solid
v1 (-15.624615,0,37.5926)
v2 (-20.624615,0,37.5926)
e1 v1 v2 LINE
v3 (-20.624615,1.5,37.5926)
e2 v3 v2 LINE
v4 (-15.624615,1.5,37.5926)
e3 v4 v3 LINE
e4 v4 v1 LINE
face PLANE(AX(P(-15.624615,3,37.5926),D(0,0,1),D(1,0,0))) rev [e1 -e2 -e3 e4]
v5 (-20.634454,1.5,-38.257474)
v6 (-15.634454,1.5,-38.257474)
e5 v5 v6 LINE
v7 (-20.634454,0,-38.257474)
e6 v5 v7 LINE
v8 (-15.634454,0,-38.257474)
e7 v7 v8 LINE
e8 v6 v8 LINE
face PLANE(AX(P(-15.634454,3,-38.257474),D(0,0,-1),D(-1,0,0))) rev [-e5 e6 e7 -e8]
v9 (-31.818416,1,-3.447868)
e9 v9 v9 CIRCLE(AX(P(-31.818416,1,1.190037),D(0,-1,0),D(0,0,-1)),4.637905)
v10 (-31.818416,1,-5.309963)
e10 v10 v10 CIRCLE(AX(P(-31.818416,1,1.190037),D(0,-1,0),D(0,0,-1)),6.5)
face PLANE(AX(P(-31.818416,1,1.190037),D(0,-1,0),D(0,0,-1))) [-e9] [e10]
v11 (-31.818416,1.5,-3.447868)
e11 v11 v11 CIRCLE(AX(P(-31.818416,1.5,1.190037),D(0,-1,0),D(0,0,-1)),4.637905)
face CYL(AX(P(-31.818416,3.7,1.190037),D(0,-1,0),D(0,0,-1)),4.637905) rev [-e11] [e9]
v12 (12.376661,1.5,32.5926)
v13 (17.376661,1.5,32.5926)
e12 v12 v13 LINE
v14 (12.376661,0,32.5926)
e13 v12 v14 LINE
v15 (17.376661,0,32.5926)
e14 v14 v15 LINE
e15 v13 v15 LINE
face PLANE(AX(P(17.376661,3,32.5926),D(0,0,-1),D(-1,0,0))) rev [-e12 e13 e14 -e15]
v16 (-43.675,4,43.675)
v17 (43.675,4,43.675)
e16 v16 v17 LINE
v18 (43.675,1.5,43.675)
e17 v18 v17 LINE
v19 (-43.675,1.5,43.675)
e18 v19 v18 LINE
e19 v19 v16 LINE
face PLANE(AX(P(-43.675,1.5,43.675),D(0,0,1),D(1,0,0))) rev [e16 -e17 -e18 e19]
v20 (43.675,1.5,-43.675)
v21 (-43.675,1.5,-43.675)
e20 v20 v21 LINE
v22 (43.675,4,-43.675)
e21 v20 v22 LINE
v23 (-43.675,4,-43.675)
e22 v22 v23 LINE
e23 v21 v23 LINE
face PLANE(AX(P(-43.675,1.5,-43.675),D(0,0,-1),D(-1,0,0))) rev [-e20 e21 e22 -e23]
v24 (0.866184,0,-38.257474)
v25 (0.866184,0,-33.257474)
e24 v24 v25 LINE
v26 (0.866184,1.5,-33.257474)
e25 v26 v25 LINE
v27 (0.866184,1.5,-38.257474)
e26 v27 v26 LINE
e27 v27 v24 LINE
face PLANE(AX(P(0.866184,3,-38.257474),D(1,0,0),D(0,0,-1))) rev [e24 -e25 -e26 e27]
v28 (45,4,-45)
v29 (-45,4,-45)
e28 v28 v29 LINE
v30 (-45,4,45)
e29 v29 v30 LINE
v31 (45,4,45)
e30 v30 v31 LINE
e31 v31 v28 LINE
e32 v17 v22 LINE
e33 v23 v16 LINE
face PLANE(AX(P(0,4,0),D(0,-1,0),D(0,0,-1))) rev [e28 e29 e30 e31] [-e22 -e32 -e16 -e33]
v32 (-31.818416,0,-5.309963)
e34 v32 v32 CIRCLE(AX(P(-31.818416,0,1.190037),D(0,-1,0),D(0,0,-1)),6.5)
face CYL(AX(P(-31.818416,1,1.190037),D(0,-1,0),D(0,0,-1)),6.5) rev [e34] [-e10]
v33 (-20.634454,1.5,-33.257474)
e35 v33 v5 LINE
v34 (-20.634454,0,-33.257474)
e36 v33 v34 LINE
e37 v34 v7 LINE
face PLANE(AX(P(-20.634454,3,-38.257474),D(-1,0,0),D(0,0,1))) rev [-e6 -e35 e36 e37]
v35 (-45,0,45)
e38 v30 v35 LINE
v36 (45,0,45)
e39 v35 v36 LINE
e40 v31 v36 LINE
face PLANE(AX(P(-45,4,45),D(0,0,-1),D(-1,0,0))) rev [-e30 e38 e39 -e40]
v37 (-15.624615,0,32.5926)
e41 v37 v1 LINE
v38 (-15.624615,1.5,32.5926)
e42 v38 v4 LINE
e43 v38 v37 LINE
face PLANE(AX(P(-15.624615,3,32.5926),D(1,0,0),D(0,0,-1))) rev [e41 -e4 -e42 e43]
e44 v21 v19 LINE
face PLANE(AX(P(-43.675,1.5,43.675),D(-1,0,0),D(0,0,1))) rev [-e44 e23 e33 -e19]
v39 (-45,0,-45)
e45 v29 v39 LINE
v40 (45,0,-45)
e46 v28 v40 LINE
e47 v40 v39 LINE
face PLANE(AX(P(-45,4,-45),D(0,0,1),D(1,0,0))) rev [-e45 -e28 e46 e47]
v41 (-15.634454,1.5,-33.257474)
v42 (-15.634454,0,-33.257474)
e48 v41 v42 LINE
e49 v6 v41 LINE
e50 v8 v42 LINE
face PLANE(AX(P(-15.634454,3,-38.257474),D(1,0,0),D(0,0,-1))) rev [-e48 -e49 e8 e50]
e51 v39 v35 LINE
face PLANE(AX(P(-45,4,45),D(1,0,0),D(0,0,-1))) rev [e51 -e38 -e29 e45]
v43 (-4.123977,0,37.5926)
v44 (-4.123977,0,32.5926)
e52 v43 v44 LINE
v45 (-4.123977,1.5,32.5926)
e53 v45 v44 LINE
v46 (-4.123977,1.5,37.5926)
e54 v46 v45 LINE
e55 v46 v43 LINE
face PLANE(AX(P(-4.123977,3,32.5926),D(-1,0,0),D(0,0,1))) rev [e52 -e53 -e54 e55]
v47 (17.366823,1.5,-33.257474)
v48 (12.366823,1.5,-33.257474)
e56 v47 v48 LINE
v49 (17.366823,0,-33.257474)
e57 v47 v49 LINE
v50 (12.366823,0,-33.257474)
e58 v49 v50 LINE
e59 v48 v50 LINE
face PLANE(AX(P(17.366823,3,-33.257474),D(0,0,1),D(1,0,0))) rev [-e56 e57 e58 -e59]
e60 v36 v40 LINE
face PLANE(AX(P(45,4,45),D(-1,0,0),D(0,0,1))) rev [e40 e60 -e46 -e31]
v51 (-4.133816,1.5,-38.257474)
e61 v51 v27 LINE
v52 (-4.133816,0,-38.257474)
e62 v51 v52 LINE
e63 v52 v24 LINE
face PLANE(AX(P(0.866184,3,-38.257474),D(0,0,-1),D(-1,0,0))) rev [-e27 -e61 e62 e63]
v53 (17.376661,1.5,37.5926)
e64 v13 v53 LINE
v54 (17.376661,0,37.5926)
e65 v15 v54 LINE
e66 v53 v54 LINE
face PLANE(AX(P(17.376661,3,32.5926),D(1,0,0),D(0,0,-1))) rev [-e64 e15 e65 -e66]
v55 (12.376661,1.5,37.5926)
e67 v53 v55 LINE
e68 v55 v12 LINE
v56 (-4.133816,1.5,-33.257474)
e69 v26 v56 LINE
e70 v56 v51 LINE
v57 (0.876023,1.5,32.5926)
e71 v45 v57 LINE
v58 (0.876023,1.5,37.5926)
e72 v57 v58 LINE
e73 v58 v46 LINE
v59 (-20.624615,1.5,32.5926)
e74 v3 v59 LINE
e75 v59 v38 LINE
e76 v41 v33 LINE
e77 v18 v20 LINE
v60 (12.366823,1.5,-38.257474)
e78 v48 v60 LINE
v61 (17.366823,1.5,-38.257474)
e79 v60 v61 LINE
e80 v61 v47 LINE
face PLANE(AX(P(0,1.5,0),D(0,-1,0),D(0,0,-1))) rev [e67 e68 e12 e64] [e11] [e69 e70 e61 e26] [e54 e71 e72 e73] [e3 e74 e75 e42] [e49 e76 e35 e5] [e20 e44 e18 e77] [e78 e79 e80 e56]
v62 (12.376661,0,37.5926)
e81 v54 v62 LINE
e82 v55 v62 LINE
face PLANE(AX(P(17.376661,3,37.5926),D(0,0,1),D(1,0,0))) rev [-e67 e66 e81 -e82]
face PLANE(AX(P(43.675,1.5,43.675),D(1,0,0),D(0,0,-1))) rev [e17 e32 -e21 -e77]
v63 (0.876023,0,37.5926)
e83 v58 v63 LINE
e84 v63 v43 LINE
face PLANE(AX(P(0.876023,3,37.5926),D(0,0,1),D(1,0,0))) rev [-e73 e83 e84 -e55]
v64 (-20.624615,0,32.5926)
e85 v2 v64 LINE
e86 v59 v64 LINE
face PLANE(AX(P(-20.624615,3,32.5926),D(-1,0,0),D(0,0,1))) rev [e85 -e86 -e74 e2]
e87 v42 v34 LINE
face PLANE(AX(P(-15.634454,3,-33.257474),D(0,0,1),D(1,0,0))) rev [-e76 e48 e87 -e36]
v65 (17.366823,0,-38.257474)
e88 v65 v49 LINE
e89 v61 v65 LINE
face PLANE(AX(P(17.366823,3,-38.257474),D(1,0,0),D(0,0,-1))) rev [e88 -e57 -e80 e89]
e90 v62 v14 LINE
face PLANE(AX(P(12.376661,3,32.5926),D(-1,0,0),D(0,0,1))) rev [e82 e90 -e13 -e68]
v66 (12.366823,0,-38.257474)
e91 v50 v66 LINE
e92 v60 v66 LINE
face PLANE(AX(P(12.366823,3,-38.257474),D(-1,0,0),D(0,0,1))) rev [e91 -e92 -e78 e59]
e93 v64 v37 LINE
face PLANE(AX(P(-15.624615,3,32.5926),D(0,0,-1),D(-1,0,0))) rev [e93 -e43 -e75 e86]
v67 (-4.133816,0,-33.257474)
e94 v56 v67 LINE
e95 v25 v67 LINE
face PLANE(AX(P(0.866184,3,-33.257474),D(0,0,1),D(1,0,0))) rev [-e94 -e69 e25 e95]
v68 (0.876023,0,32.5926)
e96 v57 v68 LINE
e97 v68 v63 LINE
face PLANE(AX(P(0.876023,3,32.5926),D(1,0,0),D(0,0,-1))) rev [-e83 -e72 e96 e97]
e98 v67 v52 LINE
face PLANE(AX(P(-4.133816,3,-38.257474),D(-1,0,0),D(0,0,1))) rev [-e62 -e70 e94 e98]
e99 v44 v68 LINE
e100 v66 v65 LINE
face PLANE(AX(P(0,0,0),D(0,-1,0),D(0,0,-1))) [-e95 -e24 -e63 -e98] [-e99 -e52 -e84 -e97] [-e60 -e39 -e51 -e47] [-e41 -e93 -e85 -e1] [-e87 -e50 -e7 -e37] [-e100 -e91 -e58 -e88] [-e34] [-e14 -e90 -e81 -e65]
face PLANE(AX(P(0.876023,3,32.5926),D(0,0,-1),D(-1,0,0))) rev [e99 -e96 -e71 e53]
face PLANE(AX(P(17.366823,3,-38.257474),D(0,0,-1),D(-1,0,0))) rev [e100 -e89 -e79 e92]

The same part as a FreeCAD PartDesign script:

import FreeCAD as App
import Part
import Sketcher
Q = App.Units.Quantity

doc = App.newDocument("Part")
body = doc.addObject("PartDesign::Body", "Body")

# Sketch on XZ plane
sketch1 = body.newObject("Sketcher::SketchObject", "Sketch")
sketch1.AttachmentSupport = (doc.getObject("XZ_Plane"), [""])
sketch1.MapMode = "FlatFace"
sketch1.addGeometry([
    Part.LineSegment(App.Vector(-45, -45, 0), App.Vector(-45, 45, 0)),
    Part.LineSegment(App.Vector(-45, 45, 0), App.Vector(45, 45, 0)),
    Part.LineSegment(App.Vector(45, 45, 0), App.Vector(45, -45, 0)),
    Part.LineSegment(App.Vector(45, -45, 0), App.Vector(-45, -45, 0)),
], False)
sketch1.addConstraint([
    Sketcher.Constraint("Coincident", 0, 2, 1, 1),
    Sketcher.Constraint("Coincident", 1, 2, 2, 1),
    Sketcher.Constraint("Coincident", 2, 2, 3, 1),
    Sketcher.Constraint("Coincident", 3, 2, 0, 1),
    Sketcher.Constraint("Vertical", 0),
    Sketcher.Constraint("Horizontal", 1),
    Sketcher.Constraint("Vertical", 2),
    Sketcher.Constraint("Horizontal", 3),
    Sketcher.Constraint("Symmetric", 0, 2, 2, 2, -1, 1),
    Sketcher.Constraint("Equal", 3, 0),
    Sketcher.Constraint("DistanceX", 1, 1, 1, 2, Q("90 mm")),
])
pad1 = body.newObject("PartDesign::Pad", "Pad")
pad1.Profile = sketch1
pad1.Length = 4
pad1.Reversed = True

# Sketch on XZ plane
sketch2 = body.newObject("Sketcher::SketchObject", "Sketch001")
sketch2.AttachmentSupport = (doc.getObject("XZ_Plane"), [""])
sketch2.MapMode = "FlatFace"
sketch2.AttachmentOffset = App.Placement(App.Vector(0, 0, -4), App.Rotation())
sketch2.addGeometry([
    Part.LineSegment(App.Vector(-44, -44, 0), App.Vector(-44, 44, 0)),
    Part.LineSegment(App.Vector(-44, 44, 0), App.Vector(44, 44, 0)),
    Part.LineSegment(App.Vector(44, 44, 0), App.Vector(44, -44, 0)),
    Part.LineSegment(App.Vector(44, -44, 0), App.Vector(-44, -44, 0)),
], False)
sketch2.addConstraint([
    Sketcher.Constraint("Coincident", 0, 2, 1, 1),
    Sketcher.Constraint("Coincident", 1, 2, 2, 1),
    Sketcher.Constraint("Coincident", 2, 2, 3, 1),
    Sketcher.Constraint("Coincident", 3, 2, 0, 1),
    Sketcher.Constraint("Vertical", 0),
    Sketcher.Constraint("Horizontal", 1),
    Sketcher.Constraint("Vertical", 2),
    Sketcher.Constraint("Horizontal", 3),
    Sketcher.Constraint("Symmetric", 0, 2, 2, 2, -1, 1),
    Sketcher.Constraint("Equal", 3, 0),
    Sketcher.Constraint("DistanceX", 1, 1, 1, 2, Q("87.35 mm")),
])
pocket1 = body.newObject("PartDesign::Pocket", "Pocket")
pocket1.Profile = sketch2
pocket1.Length = 2.5
pocket1.Reversed = True

# Sketch on XZ plane
sketch3 = body.newObject("Sketcher::SketchObject", "Sketch002")
sketch3.AttachmentSupport = (doc.getObject("XZ_Plane"), [""])
sketch3.MapMode = "FlatFace"
sketch3.addGeometry([
    Part.LineSegment(App.Vector(12, -33, 0), App.Vector(12, -38, 0)),  # 0
    Part.LineSegment(App.Vector(12, -38, 0), App.Vector(17, -38, 0)),  # 1
    Part.LineSegment(App.Vector(17, -38, 0), App.Vector(17, -33, 0)),  # 2
    Part.LineSegment(App.Vector(17, -33, 0), App.Vector(12, -33, 0)),  # 3
    Part.LineSegment(App.Vector(-4, -33, 0), App.Vector(-4, -38, 0)),  # 4
    Part.LineSegment(App.Vector(-4, -38, 0), App.Vector(1, -38, 0)),  # 5
    Part.LineSegment(App.Vector(1, -38, 0), App.Vector(1, -33, 0)),  # 6
    Part.LineSegment(App.Vector(1, -33, 0), App.Vector(-4, -33, 0)),  # 7
    Part.LineSegment(App.Vector(-21, -33, 0), App.Vector(-21, -38, 0)),  # 8
    Part.LineSegment(App.Vector(-21, -38, 0), App.Vector(-16, -38, 0)),  # 9
    Part.LineSegment(App.Vector(-16, -38, 0), App.Vector(-16, -33, 0)),  # 10
    Part.LineSegment(App.Vector(-16, -33, 0), App.Vector(-21, -33, 0)),  # 11
    Part.LineSegment(App.Vector(12, 38, 0), App.Vector(12, 33, 0)),  # 12
    Part.LineSegment(App.Vector(12, 33, 0), App.Vector(17, 33, 0)),  # 13
    Part.LineSegment(App.Vector(17, 33, 0), App.Vector(17, 38, 0)),  # 14
    Part.LineSegment(App.Vector(17, 38, 0), App.Vector(12, 38, 0)),  # 15
    Part.LineSegment(App.Vector(-4, 38, 0), App.Vector(-4, 33, 0)),  # 16
    Part.LineSegment(App.Vector(-4, 33, 0), App.Vector(1, 33, 0)),  # 17
    Part.LineSegment(App.Vector(1, 33, 0), App.Vector(1, 38, 0)),  # 18
    Part.LineSegment(App.Vector(1, 38, 0), App.Vector(-4, 38, 0)),  # 19
    Part.LineSegment(App.Vector(-21, 38, 0), App.Vector(-21, 33, 0)),  # 20
    Part.LineSegment(App.Vector(-21, 33, 0), App.Vector(-16, 33, 0)),  # 21
    Part.LineSegment(App.Vector(-16, 33, 0), App.Vector(-16, 38, 0)),  # 22
    Part.LineSegment(App.Vector(-16, 38, 0), App.Vector(-21, 38, 0)),  # 23
], False)
sketch3.addConstraint([
    Sketcher.Constraint("Coincident", 0, 2, 1, 1),
    Sketcher.Constraint("Coincident", 1, 2, 2, 1),
    Sketcher.Constraint("Coincident", 2, 2, 3, 1),
    Sketcher.Constraint("Coincident", 3, 2, 0, 1),
    Sketcher.Constraint("Coincident", 4, 2, 5, 1),
    Sketcher.Constraint("Coincident", 5, 2, 6, 1),
    Sketcher.Constraint("Coincident", 6, 2, 7, 1),
    Sketcher.Constraint("Coincident", 7, 2, 4, 1),
    Sketcher.Constraint("Coincident", 8, 2, 9, 1),
    Sketcher.Constraint("Coincident", 9, 2, 10, 1),
    Sketcher.Constraint("Coincident", 10, 2, 11, 1),
    Sketcher.Constraint("Coincident", 11, 2, 8, 1),
    Sketcher.Constraint("Coincident", 12, 2, 13, 1),
    Sketcher.Constraint("Coincident", 13, 2, 14, 1),
    Sketcher.Constraint("Coincident", 14, 2, 15, 1),
    Sketcher.Constraint("Coincident", 15, 2, 12, 1),
    Sketcher.Constraint("Coincident", 16, 2, 17, 1),
    Sketcher.Constraint("Coincident", 17, 2, 18, 1),
    Sketcher.Constraint("Coincident", 18, 2, 19, 1),
    Sketcher.Constraint("Coincident", 19, 2, 16, 1),
    Sketcher.Constraint("Coincident", 20, 2, 21, 1),
    Sketcher.Constraint("Coincident", 21, 2, 22, 1),
    Sketcher.Constraint("Coincident", 22, 2, 23, 1),
    Sketcher.Constraint("Coincident", 23, 2, 20, 1),
    Sketcher.Constraint("Vertical", 0),
    Sketcher.Constraint("Horizontal", 1),
    Sketcher.Constraint("Vertical", 2),
    Sketcher.Constraint("Horizontal", 3),
    Sketcher.Constraint("Vertical", 4),
    Sketcher.Constraint("Horizontal", 5),
    Sketcher.Constraint("Vertical", 6),
    Sketcher.Constraint("Horizontal", 7),
    Sketcher.Constraint("Vertical", 8),
    Sketcher.Constraint("Horizontal", 9),
    Sketcher.Constraint("Vertical", 10),
    Sketcher.Constraint("Horizontal", 11),
    Sketcher.Constraint("Vertical", 12),
    Sketcher.Constraint("Horizontal", 13),
    Sketcher.Constraint("Vertical", 14),
    Sketcher.Constraint("Horizontal", 15),
    Sketcher.Constraint("Vertical", 16),
    Sketcher.Constraint("Horizontal", 17),
    Sketcher.Constraint("Vertical", 18),
    Sketcher.Constraint("Horizontal", 19),
    Sketcher.Constraint("Vertical", 20),
    Sketcher.Constraint("Horizontal", 21),
    Sketcher.Constraint("Vertical", 22),
    Sketcher.Constraint("Horizontal", 23),
    Sketcher.Constraint("Horizontal", 1, 2, 4, 2),
    Sketcher.Constraint("Horizontal", 3, 2, 6, 2),
    Sketcher.Constraint("Horizontal", 5, 2, 8, 2),
    Sketcher.Constraint("Horizontal", 7, 2, 10, 2),
    Sketcher.Constraint("Horizontal", 13, 2, 16, 2),
    Sketcher.Constraint("Horizontal", 15, 2, 18, 2),
    Sketcher.Constraint("Horizontal", 17, 2, 20, 2),
    Sketcher.Constraint("Horizontal", 19, 2, 22, 2),
    Sketcher.Constraint("Equal", 3, 5),
    Sketcher.Constraint("Equal", 7, 9),
    Sketcher.Constraint("Equal", 11, 13),
    Sketcher.Constraint("Equal", 15, 17),
    Sketcher.Constraint("Equal", 19, 21),
    Sketcher.Constraint("Equal", 23, 0),
    Sketcher.Constraint("Equal", 10, 12),
    Sketcher.Constraint("DistanceX", 1, 1, 1, 2, Q("5 mm")),
    Sketcher.Constraint("DistanceY", -1, 1, 12, 2, Q("32.5926 mm")),
    Sketcher.Constraint("DistanceX", -1, 1, 12, 2, Q("12.376661 mm")),
    Sketcher.Constraint("DistanceX", 4, 2, 0, 2, Q("16.500638 mm")),
    Sketcher.Constraint("DistanceX", 8, 2, 4, 2, Q("16.500638 mm")),
    Sketcher.Constraint("DistanceX", 3, 2, 12, 2, Q("0.009839 mm")),
    Sketcher.Constraint("DistanceX", 16, 2, 12, 2, Q("16.500638 mm")),
    Sketcher.Constraint("DistanceX", 20, 2, 16, 2, Q("16.500638 mm")),
    Sketcher.Constraint("DistanceY", 0, 2, -1, 1, Q("38.257474 mm")),
])
pocket2 = body.newObject("PartDesign::Pocket", "Pocket001")
pocket2.Profile = sketch3
pocket2.Length = 3

# Sketch on XZ plane
sketch4 = body.newObject("Sketcher::SketchObject", "Sketch003")
sketch4.AttachmentSupport = (doc.getObject("XZ_Plane"), [""])
sketch4.MapMode = "FlatFace"
sketch4.addGeometry(Part.Circle(App.Vector(-32, 1, 0), App.Vector(0, 0, 1), 6), False)
sketch4.addConstraint([
    Sketcher.Constraint("Diameter", 0, Q("13 mm")),
    Sketcher.Constraint("DistanceX", 0, 3, -1, 1, Q("31.818416 mm")),
    Sketcher.Constraint("DistanceY", -1, 1, 0, 3, Q("1.190037 mm")),
])
pocket3 = body.newObject("PartDesign::Pocket", "Pocket002")
pocket3.Profile = sketch4
pocket3.Length = 1

# Sketch on XZ plane
sketch5 = body.newObject("Sketcher::SketchObject", "Sketch004")
sketch5.AttachmentSupport = (doc.getObject("XZ_Plane"), [""])
sketch5.MapMode = "FlatFace"
sketch5.AttachmentOffset = App.Placement(App.Vector(0, 0, -1), App.Rotation())
sketch5.addGeometry(Part.Circle(App.Vector(-31.8, 1.2, 0), App.Vector(0, 0, 1), 4.6), False)
sketch5.addConstraint([
    Sketcher.Constraint("Diameter", 0, Q("9.275811 mm")),
    Sketcher.Constraint("DistanceX", 0, 3, -1, 1, Q("31.818416 mm")),
    Sketcher.Constraint("DistanceY", -1, 1, 0, 3, Q("1.190037 mm")),
])
pocket4 = body.newObject("PartDesign::Pocket", "Pocket003")
pocket4.Profile = sketch5
pocket4.Length = 2.7

doc.recompute()
